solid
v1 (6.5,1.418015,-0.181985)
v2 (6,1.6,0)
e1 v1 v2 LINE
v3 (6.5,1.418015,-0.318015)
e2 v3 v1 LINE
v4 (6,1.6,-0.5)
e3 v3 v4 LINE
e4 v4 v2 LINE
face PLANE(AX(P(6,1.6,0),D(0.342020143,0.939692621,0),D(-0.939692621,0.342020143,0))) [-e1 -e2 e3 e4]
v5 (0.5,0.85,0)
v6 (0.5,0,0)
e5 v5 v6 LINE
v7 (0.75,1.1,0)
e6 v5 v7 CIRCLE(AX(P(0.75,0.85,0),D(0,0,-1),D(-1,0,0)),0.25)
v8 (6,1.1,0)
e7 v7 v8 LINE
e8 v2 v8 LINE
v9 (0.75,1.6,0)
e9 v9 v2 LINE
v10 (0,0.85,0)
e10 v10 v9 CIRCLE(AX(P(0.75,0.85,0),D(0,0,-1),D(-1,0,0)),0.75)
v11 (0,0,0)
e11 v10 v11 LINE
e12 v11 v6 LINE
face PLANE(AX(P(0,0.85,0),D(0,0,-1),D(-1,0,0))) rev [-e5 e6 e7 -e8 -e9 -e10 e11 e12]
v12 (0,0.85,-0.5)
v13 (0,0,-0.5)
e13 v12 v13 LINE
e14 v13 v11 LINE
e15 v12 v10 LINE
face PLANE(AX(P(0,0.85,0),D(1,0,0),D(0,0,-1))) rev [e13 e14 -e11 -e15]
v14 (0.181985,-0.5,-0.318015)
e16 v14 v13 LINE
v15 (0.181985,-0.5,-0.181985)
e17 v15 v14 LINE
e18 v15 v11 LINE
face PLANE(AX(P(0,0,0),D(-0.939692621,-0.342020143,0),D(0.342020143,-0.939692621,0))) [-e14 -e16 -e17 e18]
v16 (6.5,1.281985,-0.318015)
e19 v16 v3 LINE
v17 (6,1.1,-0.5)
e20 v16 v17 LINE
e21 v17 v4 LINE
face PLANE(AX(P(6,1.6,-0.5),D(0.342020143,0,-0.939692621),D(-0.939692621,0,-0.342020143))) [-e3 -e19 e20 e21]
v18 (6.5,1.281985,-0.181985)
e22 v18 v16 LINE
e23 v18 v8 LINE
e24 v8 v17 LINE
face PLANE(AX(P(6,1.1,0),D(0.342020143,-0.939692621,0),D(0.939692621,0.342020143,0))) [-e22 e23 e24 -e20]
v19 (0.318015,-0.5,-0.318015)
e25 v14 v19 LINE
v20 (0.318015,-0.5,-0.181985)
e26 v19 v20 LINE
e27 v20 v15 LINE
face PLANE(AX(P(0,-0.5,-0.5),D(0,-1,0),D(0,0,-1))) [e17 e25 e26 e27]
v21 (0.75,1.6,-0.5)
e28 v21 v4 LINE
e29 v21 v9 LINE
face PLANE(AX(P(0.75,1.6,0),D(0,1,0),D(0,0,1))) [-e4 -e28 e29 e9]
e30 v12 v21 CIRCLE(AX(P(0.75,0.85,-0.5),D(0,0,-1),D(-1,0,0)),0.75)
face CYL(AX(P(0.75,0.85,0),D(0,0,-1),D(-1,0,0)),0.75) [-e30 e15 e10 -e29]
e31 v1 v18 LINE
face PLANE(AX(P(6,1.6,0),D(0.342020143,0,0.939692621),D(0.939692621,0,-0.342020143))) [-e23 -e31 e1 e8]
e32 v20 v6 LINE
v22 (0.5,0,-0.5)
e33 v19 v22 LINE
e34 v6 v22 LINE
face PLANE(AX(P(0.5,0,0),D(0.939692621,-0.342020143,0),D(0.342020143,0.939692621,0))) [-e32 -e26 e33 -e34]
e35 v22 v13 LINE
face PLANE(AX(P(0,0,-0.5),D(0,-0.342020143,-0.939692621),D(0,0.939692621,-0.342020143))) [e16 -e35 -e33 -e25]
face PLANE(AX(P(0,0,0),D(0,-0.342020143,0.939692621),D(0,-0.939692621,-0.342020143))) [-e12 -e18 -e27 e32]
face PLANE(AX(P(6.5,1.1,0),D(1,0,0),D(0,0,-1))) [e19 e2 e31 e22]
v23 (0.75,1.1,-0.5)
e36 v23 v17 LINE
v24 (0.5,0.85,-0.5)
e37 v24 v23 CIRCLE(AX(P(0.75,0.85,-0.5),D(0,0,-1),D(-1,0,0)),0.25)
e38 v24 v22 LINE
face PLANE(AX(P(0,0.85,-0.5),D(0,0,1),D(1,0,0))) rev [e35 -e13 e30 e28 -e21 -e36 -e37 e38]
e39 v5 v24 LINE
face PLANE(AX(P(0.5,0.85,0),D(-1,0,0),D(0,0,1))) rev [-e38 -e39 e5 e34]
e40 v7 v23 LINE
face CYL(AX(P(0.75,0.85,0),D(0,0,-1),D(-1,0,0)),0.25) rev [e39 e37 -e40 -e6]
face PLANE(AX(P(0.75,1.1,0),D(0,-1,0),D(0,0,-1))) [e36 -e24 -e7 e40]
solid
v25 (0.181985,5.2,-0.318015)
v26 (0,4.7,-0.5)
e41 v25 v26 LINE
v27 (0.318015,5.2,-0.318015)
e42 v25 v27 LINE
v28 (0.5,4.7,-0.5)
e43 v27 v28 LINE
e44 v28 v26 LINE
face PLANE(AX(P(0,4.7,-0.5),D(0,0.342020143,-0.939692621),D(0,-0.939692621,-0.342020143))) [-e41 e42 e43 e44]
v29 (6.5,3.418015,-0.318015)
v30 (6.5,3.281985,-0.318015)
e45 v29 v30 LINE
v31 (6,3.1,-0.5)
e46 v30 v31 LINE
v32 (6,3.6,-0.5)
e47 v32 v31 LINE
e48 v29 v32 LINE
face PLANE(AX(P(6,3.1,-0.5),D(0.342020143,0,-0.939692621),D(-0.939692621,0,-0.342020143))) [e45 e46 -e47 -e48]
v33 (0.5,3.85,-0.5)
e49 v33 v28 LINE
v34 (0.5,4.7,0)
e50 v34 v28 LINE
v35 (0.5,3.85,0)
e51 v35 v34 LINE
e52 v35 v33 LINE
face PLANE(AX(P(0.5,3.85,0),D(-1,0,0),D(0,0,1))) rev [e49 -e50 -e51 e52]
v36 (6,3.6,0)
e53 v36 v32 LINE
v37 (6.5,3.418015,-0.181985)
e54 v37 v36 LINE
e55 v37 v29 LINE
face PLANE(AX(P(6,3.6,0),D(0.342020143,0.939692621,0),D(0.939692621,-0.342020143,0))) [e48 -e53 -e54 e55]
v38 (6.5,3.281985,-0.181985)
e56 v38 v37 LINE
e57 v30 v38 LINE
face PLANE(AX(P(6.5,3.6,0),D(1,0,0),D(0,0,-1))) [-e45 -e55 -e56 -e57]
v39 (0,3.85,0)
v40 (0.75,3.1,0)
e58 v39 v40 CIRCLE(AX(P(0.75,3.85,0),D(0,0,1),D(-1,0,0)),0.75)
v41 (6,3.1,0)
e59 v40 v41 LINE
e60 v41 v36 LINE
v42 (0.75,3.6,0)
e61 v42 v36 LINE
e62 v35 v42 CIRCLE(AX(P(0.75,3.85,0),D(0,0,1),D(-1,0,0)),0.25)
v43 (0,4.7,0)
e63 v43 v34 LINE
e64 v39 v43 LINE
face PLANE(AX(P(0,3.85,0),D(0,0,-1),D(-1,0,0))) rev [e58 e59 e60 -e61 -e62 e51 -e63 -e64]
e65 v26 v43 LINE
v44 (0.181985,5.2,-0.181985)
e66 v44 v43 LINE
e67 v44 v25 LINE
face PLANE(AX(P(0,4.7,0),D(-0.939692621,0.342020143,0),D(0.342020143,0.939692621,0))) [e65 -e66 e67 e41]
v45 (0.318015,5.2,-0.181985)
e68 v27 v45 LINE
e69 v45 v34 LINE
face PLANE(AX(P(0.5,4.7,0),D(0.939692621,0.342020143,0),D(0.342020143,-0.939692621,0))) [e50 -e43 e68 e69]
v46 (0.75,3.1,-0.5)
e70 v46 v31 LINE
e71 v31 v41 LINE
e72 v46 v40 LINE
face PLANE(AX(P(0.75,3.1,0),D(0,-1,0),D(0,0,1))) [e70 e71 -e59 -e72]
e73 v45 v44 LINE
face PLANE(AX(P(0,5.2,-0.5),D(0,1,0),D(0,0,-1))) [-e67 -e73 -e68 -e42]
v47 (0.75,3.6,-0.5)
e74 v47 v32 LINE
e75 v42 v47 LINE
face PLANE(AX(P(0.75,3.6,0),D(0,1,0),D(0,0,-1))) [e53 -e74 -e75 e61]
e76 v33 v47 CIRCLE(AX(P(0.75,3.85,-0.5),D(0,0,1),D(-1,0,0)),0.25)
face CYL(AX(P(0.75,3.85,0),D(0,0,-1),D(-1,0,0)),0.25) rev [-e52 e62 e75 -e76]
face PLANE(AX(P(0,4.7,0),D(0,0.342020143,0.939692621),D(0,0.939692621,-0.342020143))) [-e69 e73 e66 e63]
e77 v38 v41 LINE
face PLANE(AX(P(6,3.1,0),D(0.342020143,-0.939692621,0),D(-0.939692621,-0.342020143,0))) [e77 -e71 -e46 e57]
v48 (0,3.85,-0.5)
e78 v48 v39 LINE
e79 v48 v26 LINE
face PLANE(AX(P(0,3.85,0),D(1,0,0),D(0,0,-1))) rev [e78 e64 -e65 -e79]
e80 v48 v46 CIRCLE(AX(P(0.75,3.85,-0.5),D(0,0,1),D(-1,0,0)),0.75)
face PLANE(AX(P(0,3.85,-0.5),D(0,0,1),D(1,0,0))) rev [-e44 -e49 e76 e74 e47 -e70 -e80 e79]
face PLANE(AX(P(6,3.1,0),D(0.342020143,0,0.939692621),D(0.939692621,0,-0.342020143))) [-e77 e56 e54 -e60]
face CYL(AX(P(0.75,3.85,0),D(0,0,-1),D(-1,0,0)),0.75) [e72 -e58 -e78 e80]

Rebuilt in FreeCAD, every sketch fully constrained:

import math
import FreeCAD as App
import Part
import Sketcher
from FreeCAD import Vector


def add_polygon(sketch, points):
    """Adds a closed chain of lines whose ends are joined by coincident constraints."""
    first, n = sketch.GeometryCount, len(points)
    for a, b in zip(points, points[1:] + points[:1]):
        sketch.addGeometry(Part.LineSegment(App.Vector(*a, 0), App.Vector(*b, 0)), False)
    for i in range(n):
        sketch.addConstraint(Sketcher.Constraint("Coincident", first + i, 2, first + (i + 1) % n, 1))

doc = App.newDocument("Part")
params = doc.addObject("Spreadsheet::Sheet", "Params")
for row, (alias, value) in enumerate([
    ("sketch1_width", "0.5 mm"),
    ("sketch2_radius", "0.5 mm"),
    ("sketch2_width", "5.25 mm"),
    ("sketch2_height", "0.85 mm"),
    ("sketch3_width", "0.5 mm"),
    ("pad1_length", "0.5 mm"),
    ("pad1_taper", "-20 deg"),
    ("sketch4_width", "0.5 mm"),
    ("pad2_length", "0.5 mm"),
    ("pad2_taper", "-20 deg"),
], start=1):
    params.set(f"A{row}", alias)
    params.set(f"B{row}", "=" + value)
    params.setAlias(f"B{row}", alias)

body = doc.addObject("PartDesign::Body", "Body")

# Sketch on XZ plane
sketch1 = body.newObject("Sketcher::SketchObject", "Sketch")
sketch1.AttachmentSupport = (doc.getObject("XZ_Plane"), [""])
sketch1.MapMode = "FlatFace"
add_polygon(sketch1, [(0, -0.5), (0, 0), (0.5, 0), (0.5, -0.5)])  # lines 0-3
sketch1.addConstraint([
    Sketcher.Constraint("Vertical", 0),
    Sketcher.Constraint("Horizontal", 1),
    Sketcher.Constraint("Vertical", 2),
    Sketcher.Constraint("Horizontal", 3),
    Sketcher.Constraint("Coincident", 0, 2, -1, 1),
    Sketcher.Constraint("Equal", 3, 0),
    Sketcher.Constraint("DistanceX", 1, 1, 1, 2, 0.5),
])
sketch1.setExpression("Constraints[10]", "Params.sketch1_width")

# Sketch on XY plane
sketch2 = body.newObject("Sketcher::SketchObject", "Sketch001")
sketch2.AttachmentSupport = (doc.getObject("XY_Plane"), [""])
sketch2.MapMode = "FlatFace"
sketch2.addGeometry([
    Part.LineSegment(Vector(0.25, 0, 0), Vector(0.25, 0.85, 0)),
    Part.ArcOfCircle(Part.Circle(Vector(0.75, 0.85, 0), Vector(0, 0, 1), 0.5), math.radians(90), math.radians(180)),
    Part.LineSegment(Vector(0.75, 1.35, 0), Vector(6, 1.35, 0)),
], False)
sketch2.addConstraint([
    Sketcher.Constraint("Tangent", 0, 2, 1, 2),
    Sketcher.Constraint("Tangent", 1, 1, 2, 1),
    Sketcher.Constraint("Vertical", 0),
    Sketcher.Constraint("Horizontal", 2),
    Sketcher.Constraint("PointOnObject", 0, 1, -1),
    Sketcher.Constraint("Radius", 1, 0.5),
    Sketcher.Constraint("DistanceX", -1, 1, 2, 2, 6.0),
    Sketcher.Constraint("DistanceX", 2, 1, 2, 2, 5.25),
    Sketcher.Constraint("DistanceY", 0, 1, 0, 2, 0.85),
])
sketch2.setExpression("Constraints[5]", "Params.sketch2_radius")
sketch2.setExpression("Constraints[7]", "Params.sketch2_width")
sketch2.setExpression("Constraints[8]", "Params.sketch2_height")
doc.recompute()

additivepipe = body.newObject("PartDesign::AdditivePipe", "AdditivePipe")
additivepipe.Profile = sketch1
additivepipe.Spine = (sketch2, ["Edge1", "Edge2", "Edge3"])

# Sketch on YZ plane
sketch3 = body.newObject("Sketcher::SketchObject", "Sketch002")
sketch3.AttachmentSupport = (doc.getObject("YZ_Plane"), [""])
sketch3.MapMode = "FlatFace"
sketch3.AttachmentOffset = App.Placement(Vector(0, 0, 6), App.Rotation())
add_polygon(sketch3, [(1.6, 0), (1.1, 0), (1.1, -0.5), (1.6, -0.5)])  # lines 0-3
sketch3.addConstraint([
    Sketcher.Constraint("Horizontal", 0),
    Sketcher.Constraint("Vertical", 1),
    Sketcher.Constraint("Horizontal", 2),
    Sketcher.Constraint("Vertical", 3),
    Sketcher.Constraint("PointOnObject", 0, 2, -1),
    Sketcher.Constraint("Equal", 2, 1),
    Sketcher.Constraint("DistanceX", 0, 2, 0, 1, 0.5),
    Sketcher.Constraint("DistanceX", -1, 1, 0, 2, 1.1),
])
sketch3.setExpression("Constraints[10]", "Params.sketch3_width")
pad1 = body.newObject("PartDesign::Pad", "Pad")
pad1.Profile = sketch3
pad1.setExpression("Length", "Params.pad1_length")
pad1.setExpression("TaperAngle", "Params.pad1_taper")

# Sketch on XZ plane
sketch4 = body.newObject("Sketcher::SketchObject", "Sketch003")
sketch4.AttachmentSupport = (doc.getObject("XZ_Plane"), [""])
sketch4.MapMode = "FlatFace"
add_polygon(sketch4, [(0, 0), (0, -0.5), (0.5, -0.5), (0.5, 0)])  # lines 0-3
sketch4.addConstraint([
    Sketcher.Constraint("Vertical", 0),
    Sketcher.Constraint("Horizontal", 1),
    Sketcher.Constraint("Vertical", 2),
    Sketcher.Constraint("Horizontal", 3),
    Sketcher.Constraint("Coincident", 3, 2, -1, 1),
    Sketcher.Constraint("Equal", 3, 0),
    Sketcher.Constraint("DistanceX", 1, 1, 1, 2, 0.5),
])
sketch4.setExpression("Constraints[10]", "Params.sketch4_width")
pad2 = body.newObject("PartDesign::Pad", "Pad001")
pad2.Profile = sketch4
pad2.setExpression("Length", "Params.pad2_length")
pad2.setExpression("TaperAngle", "Params.pad2_taper")
body2 = doc.addObject("PartDesign::Body", "Body001")
doc.recompute()

mirroring = doc.addObject("Part::Mirroring", "Mirroring")
mirroring.Source = body
mirroring.Base = Vector(0, 2.35, 0)
mirroring.Normal = Vector(0, 1, 0)
body2.BaseFeature = mirroring
doc.recompute()
mirroring.Visibility = False

doc.recompute()
